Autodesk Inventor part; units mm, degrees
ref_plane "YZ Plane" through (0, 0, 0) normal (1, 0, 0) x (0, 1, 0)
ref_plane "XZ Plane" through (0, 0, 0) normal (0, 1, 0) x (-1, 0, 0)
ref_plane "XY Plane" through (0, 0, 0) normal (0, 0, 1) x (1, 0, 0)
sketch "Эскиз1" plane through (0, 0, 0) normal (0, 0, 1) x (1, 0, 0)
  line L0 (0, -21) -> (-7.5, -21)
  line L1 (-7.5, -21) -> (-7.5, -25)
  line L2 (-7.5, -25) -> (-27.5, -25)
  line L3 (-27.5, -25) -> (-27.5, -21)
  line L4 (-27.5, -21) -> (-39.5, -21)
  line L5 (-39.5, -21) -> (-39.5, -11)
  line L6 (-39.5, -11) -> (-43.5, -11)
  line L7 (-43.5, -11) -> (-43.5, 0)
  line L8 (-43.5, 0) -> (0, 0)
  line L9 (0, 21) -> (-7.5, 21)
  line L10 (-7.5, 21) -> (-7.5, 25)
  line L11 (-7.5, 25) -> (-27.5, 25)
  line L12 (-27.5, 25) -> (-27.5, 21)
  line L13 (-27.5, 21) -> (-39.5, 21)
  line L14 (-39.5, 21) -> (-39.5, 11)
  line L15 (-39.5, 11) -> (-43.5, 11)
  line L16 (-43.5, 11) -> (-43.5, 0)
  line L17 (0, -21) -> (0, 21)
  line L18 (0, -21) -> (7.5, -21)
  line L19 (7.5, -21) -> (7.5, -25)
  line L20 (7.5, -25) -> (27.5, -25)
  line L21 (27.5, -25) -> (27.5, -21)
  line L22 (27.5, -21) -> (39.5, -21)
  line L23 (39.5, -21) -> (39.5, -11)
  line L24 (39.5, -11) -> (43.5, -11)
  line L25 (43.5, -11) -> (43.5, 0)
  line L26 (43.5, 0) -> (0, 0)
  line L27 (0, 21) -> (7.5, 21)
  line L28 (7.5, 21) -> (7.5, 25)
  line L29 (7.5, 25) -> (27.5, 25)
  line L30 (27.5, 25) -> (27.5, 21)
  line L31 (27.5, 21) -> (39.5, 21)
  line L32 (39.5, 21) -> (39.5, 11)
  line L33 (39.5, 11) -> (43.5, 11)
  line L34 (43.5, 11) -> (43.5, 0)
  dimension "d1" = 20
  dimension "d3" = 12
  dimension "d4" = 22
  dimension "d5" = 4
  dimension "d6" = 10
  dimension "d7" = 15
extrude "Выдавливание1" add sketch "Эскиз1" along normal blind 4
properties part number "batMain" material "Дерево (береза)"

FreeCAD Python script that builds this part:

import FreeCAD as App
import Part
import Sketcher
Q = App.Units.Quantity

doc = App.newDocument("Part")
body = doc.addObject("PartDesign::Body", "Body")

sketch1 = doc.addObject("Sketcher::SketchObject", "Sketch")
body.addObject(sketch1)
sketch1.AttachmentSupport = (doc.XY_Plane, [""])
sketch1.MapMode = "FlatFace"
sketch1.addGeometry(Part.LineSegment(App.Vector(-7.5, -21, 0), App.Vector(7.5, -21, 0)), False)
sketch1.addGeometry(Part.LineSegment(App.Vector(7.5, -21, 0), App.Vector(7.5, -25, 0)), False)
sketch1.addGeometry(Part.LineSegment(App.Vector(7.5, -25, 0), App.Vector(27.5, -25, 0)), False)
sketch1.addGeometry(Part.LineSegment(App.Vector(27.5, -25, 0), App.Vector(27.5, -21, 0)), False)
sketch1.addGeometry(Part.LineSegment(App.Vector(27.5, -21, 0), App.Vector(39.5, -21, 0)), False)
sketch1.addGeometry(Part.LineSegment(App.Vector(39.5, -21, 0), App.Vector(39.5, -11, 0)), False)
sketch1.addGeometry(Part.LineSegment(App.Vector(39.5, -11, 0), App.Vector(43.5, -11, 0)), False)
sketch1.addGeometry(Part.LineSegment(App.Vector(43.5, -11, 0), App.Vector(43.5, 11, 0)), False)
sketch1.addGeometry(Part.LineSegment(App.Vector(43.5, 11, 0), App.Vector(39.5, 11, 0)), False)
sketch1.addGeometry(Part.LineSegment(App.Vector(39.5, 11, 0), App.Vector(39.5, 21, 0)), False)
sketch1.addGeometry(Part.LineSegment(App.Vector(39.5, 21, 0), App.Vector(27.5, 21, 0)), False)
sketch1.addGeometry(Part.LineSegment(App.Vector(27.5, 21, 0), App.Vector(27.5, 25, 0)), False)
sketch1.addGeometry(Part.LineSegment(App.Vector(27.5, 25, 0), App.Vector(7.5, 25, 0)), False)
sketch1.addGeometry(Part.LineSegment(App.Vector(7.5, 25, 0), App.Vector(7.5, 21, 0)), False)
sketch1.addGeometry(Part.LineSegment(App.Vector(7.5, 21, 0), App.Vector(-7.5, 21, 0)), False)
sketch1.addGeometry(Part.LineSegment(App.Vector(-7.5, 21, 0), App.Vector(-7.5, 25, 0)), False)
sketch1.addGeometry(Part.LineSegment(App.Vector(-7.5, 25, 0), App.Vector(-27.5, 25, 0)), False)
sketch1.addGeometry(Part.LineSegment(App.Vector(-27.5, 25, 0), App.Vector(-27.5, 21, 0)), False)
sketch1.addGeometry(Part.LineSegment(App.Vector(-27.5, 21, 0), App.Vector(-39.5, 21, 0)), False)
sketch1.addGeometry(Part.LineSegment(App.Vector(-39.5, 21, 0), App.Vector(-39.5, 11, 0)), False)
sketch1.addGeometry(Part.LineSegment(App.Vector(-39.5, 11, 0), App.Vector(-43.5, 11, 0)), False)
sketch1.addGeometry(Part.LineSegment(App.Vector(-43.5, 11, 0), App.Vector(-43.5, -11, 0)), False)
sketch1.addGeometry(Part.LineSegment(App.Vector(-43.5, -11, 0), App.Vector(-39.5, -11, 0)), False)
sketch1.addGeometry(Part.LineSegment(App.Vector(-39.5, -11, 0), App.Vector(-39.5, -21, 0)), False)
sketch1.addGeometry(Part.LineSegment(App.Vector(-39.5, -21, 0), App.Vector(-27.5, -21, 0)), False)
sketch1.addGeometry(Part.LineSegment(App.Vector(-27.5, -21, 0), App.Vector(-27.5, -25, 0)), False)
sketch1.addGeometry(Part.LineSegment(App.Vector(-27.5, -25, 0), App.Vector(-7.5, -25, 0)), False)
sketch1.addGeometry(Part.LineSegment(App.Vector(-7.5, -25, 0), App.Vector(-7.5, -21, 0)), False)
sketch1.addConstraint(Sketcher.Constraint("Coincident", 0, 2, 1, 1))
sketch1.addConstraint(Sketcher.Constraint("Coincident", 1, 2, 2, 1))
sketch1.addConstraint(Sketcher.Constraint("Coincident", 2, 2, 3, 1))
sketch1.addConstraint(Sketcher.Constraint("Coincident", 3, 2, 4, 1))
sketch1.addConstraint(Sketcher.Constraint("Coincident", 4, 2, 5, 1))
sketch1.addConstraint(Sketcher.Constraint("Coincident", 5, 2, 6, 1))
sketch1.addConstraint(Sketcher.Constraint("Coincident", 6, 2, 7, 1))
sketch1.addConstraint(Sketcher.Constraint("Coincident", 7, 2, 8, 1))
sketch1.addConstraint(Sketcher.Constraint("Coincident", 8, 2, 9, 1))
sketch1.addConstraint(Sketcher.Constraint("Coincident", 9, 2, 10, 1))
sketch1.addConstraint(Sketcher.Constraint("Coincident", 10, 2, 11, 1))
sketch1.addConstraint(Sketcher.Constraint("Coincident", 11, 2, 12, 1))
sketch1.addConstraint(Sketcher.Constraint("Coincident", 12, 2, 13, 1))
sketch1.addConstraint(Sketcher.Constraint("Coincident", 13, 2, 14, 1))
sketch1.addConstraint(Sketcher.Constraint("Coincident", 14, 2, 15, 1))
sketch1.addConstraint(Sketcher.Constraint("Coincident", 15, 2, 16, 1))
sketch1.addConstraint(Sketcher.Constraint("Coincident", 16, 2, 17, 1))
sketch1.addConstraint(Sketcher.Constraint("Coincident", 17, 2, 18, 1))
sketch1.addConstraint(Sketcher.Constraint("Coincident", 18, 2, 19, 1))
sketch1.addConstraint(Sketcher.Constraint("Coincident", 19, 2, 20, 1))
sketch1.addConstraint(Sketcher.Constraint("Coincident", 20, 2, 21, 1))
sketch1.addConstraint(Sketcher.Constraint("Coincident", 21, 2, 22, 1))
sketch1.addConstraint(Sketcher.Constraint("Coincident", 22, 2, 23, 1))
sketch1.addConstraint(Sketcher.Constraint("Coincident", 23, 2, 24, 1))
sketch1.addConstraint(Sketcher.Constraint("Coincident", 24, 2, 25, 1))
sketch1.addConstraint(Sketcher.Constraint("Coincident", 25, 2, 26, 1))
sketch1.addConstraint(Sketcher.Constraint("Coincident", 26, 2, 27, 1))
sketch1.addConstraint(Sketcher.Constraint("Coincident", 27, 2, 0, 1))
sketch1.addConstraint(Sketcher.Constraint("Horizontal", 0))
sketch1.addConstraint(Sketcher.Constraint("Vertical", 1))
sketch1.addConstraint(Sketcher.Constraint("Horizontal", 2))
sketch1.addConstraint(Sketcher.Constraint("Vertical", 3))
sketch1.addConstraint(Sketcher.Constraint("Horizontal", 4))
sketch1.addConstraint(Sketcher.Constraint("Vertical", 5))
sketch1.addConstraint(Sketcher.Constraint("Horizontal", 6))
sketch1.addConstraint(Sketcher.Constraint("Vertical", 7))
sketch1.addConstraint(Sketcher.Constraint("Horizontal", 8))
sketch1.addConstraint(Sketcher.Constraint("Vertical", 9))
sketch1.addConstraint(Sketcher.Constraint("Horizontal", 10))
sketch1.addConstraint(Sketcher.Constraint("Vertical", 11))
sketch1.addConstraint(Sketcher.Constraint("Horizontal", 12))
sketch1.addConstraint(Sketcher.Constraint("Vertical", 13))
sketch1.addConstraint(Sketcher.Constraint("Horizontal", 14))
sketch1.addConstraint(Sketcher.Constraint("Vertical", 15))
sketch1.addConstraint(Sketcher.Constraint("Horizontal", 16))
sketch1.addConstraint(Sketcher.Constraint("Vertical", 17))
sketch1.addConstraint(Sketcher.Constraint("Horizontal", 18))
sketch1.addConstraint(Sketcher.Constraint("Vertical", 19))
sketch1.addConstraint(Sketcher.Constraint("Horizontal", 20))
sketch1.addConstraint(Sketcher.Constraint("Vertical", 21))
sketch1.addConstraint(Sketcher.Constraint("Horizontal", 22))
sketch1.addConstraint(Sketcher.Constraint("Vertical", 23))
sketch1.addConstraint(Sketcher.Constraint("Horizontal", 24))
sketch1.addConstraint(Sketcher.Constraint("Vertical", 25))
sketch1.addConstraint(Sketcher.Constraint("Horizontal", 26))
sketch1.addConstraint(Sketcher.Constraint("Vertical", 27))
sketch1.addConstraint(Sketcher.Constraint("Symmetric", 0, 2, 14, 2, -1, 1))
sketch1.addConstraint(Sketcher.Constraint("Symmetric", 2, 2, 16, 2, -1, 1))
sketch1.addConstraint(Sketcher.Constraint("Symmetric", 4, 2, 18, 2, -1, 1))
sketch1.addConstraint(Sketcher.Constraint("Symmetric", 6, 2, 20, 2, -1, 1))
sketch1.addConstraint(Sketcher.Constraint("Symmetric", 8, 2, 22, 2, -1, 1))
sketch1.addConstraint(Sketcher.Constraint("Symmetric", 10, 2, 24, 2, -1, 1))
sketch1.addConstraint(Sketcher.Constraint("Symmetric", 12, 2, 26, 2, -1, 1))
sketch1.addConstraint(Sketcher.Constraint("Symmetric", 12, 2, 15, 2, -2))
sketch1.addConstraint(Sketcher.Constraint("Symmetric", 10, 2, 17, 2, -2))
sketch1.addConstraint(Sketcher.Constraint("Symmetric", 8, 2, 19, 2, -2))
sketch1.addConstraint(Sketcher.Constraint("Horizontal", 0, 2, 3, 2))
sketch1.addConstraint(Sketcher.Constraint("Equal", 22, 1))
sketch1.addConstraint(Sketcher.Constraint("DistanceX", 0, 1, 0, 2, Q("15 mm")))
sketch1.addConstraint(Sketcher.Constraint("DistanceX", 2, 1, 2, 2, Q("20 mm")))
sketch1.addConstraint(Sketcher.Constraint("DistanceX", 4, 1, 4, 2, Q("12 mm")))
sketch1.addConstraint(Sketcher.Constraint("DistanceX", 6, 1, 6, 2, Q("4 mm")))
sketch1.addConstraint(Sketcher.Constraint("DistanceY", 5, 1, 5, 2, Q("10 mm")))
sketch1.addConstraint(Sketcher.Constraint("DistanceY", 7, 1, 7, 2, Q("22 mm")))
pad1 = doc.addObject("PartDesign::Pad", "Pad")
body.addObject(pad1)
pad1.Profile = sketch1
pad1.Length = 4

doc.recompute()
